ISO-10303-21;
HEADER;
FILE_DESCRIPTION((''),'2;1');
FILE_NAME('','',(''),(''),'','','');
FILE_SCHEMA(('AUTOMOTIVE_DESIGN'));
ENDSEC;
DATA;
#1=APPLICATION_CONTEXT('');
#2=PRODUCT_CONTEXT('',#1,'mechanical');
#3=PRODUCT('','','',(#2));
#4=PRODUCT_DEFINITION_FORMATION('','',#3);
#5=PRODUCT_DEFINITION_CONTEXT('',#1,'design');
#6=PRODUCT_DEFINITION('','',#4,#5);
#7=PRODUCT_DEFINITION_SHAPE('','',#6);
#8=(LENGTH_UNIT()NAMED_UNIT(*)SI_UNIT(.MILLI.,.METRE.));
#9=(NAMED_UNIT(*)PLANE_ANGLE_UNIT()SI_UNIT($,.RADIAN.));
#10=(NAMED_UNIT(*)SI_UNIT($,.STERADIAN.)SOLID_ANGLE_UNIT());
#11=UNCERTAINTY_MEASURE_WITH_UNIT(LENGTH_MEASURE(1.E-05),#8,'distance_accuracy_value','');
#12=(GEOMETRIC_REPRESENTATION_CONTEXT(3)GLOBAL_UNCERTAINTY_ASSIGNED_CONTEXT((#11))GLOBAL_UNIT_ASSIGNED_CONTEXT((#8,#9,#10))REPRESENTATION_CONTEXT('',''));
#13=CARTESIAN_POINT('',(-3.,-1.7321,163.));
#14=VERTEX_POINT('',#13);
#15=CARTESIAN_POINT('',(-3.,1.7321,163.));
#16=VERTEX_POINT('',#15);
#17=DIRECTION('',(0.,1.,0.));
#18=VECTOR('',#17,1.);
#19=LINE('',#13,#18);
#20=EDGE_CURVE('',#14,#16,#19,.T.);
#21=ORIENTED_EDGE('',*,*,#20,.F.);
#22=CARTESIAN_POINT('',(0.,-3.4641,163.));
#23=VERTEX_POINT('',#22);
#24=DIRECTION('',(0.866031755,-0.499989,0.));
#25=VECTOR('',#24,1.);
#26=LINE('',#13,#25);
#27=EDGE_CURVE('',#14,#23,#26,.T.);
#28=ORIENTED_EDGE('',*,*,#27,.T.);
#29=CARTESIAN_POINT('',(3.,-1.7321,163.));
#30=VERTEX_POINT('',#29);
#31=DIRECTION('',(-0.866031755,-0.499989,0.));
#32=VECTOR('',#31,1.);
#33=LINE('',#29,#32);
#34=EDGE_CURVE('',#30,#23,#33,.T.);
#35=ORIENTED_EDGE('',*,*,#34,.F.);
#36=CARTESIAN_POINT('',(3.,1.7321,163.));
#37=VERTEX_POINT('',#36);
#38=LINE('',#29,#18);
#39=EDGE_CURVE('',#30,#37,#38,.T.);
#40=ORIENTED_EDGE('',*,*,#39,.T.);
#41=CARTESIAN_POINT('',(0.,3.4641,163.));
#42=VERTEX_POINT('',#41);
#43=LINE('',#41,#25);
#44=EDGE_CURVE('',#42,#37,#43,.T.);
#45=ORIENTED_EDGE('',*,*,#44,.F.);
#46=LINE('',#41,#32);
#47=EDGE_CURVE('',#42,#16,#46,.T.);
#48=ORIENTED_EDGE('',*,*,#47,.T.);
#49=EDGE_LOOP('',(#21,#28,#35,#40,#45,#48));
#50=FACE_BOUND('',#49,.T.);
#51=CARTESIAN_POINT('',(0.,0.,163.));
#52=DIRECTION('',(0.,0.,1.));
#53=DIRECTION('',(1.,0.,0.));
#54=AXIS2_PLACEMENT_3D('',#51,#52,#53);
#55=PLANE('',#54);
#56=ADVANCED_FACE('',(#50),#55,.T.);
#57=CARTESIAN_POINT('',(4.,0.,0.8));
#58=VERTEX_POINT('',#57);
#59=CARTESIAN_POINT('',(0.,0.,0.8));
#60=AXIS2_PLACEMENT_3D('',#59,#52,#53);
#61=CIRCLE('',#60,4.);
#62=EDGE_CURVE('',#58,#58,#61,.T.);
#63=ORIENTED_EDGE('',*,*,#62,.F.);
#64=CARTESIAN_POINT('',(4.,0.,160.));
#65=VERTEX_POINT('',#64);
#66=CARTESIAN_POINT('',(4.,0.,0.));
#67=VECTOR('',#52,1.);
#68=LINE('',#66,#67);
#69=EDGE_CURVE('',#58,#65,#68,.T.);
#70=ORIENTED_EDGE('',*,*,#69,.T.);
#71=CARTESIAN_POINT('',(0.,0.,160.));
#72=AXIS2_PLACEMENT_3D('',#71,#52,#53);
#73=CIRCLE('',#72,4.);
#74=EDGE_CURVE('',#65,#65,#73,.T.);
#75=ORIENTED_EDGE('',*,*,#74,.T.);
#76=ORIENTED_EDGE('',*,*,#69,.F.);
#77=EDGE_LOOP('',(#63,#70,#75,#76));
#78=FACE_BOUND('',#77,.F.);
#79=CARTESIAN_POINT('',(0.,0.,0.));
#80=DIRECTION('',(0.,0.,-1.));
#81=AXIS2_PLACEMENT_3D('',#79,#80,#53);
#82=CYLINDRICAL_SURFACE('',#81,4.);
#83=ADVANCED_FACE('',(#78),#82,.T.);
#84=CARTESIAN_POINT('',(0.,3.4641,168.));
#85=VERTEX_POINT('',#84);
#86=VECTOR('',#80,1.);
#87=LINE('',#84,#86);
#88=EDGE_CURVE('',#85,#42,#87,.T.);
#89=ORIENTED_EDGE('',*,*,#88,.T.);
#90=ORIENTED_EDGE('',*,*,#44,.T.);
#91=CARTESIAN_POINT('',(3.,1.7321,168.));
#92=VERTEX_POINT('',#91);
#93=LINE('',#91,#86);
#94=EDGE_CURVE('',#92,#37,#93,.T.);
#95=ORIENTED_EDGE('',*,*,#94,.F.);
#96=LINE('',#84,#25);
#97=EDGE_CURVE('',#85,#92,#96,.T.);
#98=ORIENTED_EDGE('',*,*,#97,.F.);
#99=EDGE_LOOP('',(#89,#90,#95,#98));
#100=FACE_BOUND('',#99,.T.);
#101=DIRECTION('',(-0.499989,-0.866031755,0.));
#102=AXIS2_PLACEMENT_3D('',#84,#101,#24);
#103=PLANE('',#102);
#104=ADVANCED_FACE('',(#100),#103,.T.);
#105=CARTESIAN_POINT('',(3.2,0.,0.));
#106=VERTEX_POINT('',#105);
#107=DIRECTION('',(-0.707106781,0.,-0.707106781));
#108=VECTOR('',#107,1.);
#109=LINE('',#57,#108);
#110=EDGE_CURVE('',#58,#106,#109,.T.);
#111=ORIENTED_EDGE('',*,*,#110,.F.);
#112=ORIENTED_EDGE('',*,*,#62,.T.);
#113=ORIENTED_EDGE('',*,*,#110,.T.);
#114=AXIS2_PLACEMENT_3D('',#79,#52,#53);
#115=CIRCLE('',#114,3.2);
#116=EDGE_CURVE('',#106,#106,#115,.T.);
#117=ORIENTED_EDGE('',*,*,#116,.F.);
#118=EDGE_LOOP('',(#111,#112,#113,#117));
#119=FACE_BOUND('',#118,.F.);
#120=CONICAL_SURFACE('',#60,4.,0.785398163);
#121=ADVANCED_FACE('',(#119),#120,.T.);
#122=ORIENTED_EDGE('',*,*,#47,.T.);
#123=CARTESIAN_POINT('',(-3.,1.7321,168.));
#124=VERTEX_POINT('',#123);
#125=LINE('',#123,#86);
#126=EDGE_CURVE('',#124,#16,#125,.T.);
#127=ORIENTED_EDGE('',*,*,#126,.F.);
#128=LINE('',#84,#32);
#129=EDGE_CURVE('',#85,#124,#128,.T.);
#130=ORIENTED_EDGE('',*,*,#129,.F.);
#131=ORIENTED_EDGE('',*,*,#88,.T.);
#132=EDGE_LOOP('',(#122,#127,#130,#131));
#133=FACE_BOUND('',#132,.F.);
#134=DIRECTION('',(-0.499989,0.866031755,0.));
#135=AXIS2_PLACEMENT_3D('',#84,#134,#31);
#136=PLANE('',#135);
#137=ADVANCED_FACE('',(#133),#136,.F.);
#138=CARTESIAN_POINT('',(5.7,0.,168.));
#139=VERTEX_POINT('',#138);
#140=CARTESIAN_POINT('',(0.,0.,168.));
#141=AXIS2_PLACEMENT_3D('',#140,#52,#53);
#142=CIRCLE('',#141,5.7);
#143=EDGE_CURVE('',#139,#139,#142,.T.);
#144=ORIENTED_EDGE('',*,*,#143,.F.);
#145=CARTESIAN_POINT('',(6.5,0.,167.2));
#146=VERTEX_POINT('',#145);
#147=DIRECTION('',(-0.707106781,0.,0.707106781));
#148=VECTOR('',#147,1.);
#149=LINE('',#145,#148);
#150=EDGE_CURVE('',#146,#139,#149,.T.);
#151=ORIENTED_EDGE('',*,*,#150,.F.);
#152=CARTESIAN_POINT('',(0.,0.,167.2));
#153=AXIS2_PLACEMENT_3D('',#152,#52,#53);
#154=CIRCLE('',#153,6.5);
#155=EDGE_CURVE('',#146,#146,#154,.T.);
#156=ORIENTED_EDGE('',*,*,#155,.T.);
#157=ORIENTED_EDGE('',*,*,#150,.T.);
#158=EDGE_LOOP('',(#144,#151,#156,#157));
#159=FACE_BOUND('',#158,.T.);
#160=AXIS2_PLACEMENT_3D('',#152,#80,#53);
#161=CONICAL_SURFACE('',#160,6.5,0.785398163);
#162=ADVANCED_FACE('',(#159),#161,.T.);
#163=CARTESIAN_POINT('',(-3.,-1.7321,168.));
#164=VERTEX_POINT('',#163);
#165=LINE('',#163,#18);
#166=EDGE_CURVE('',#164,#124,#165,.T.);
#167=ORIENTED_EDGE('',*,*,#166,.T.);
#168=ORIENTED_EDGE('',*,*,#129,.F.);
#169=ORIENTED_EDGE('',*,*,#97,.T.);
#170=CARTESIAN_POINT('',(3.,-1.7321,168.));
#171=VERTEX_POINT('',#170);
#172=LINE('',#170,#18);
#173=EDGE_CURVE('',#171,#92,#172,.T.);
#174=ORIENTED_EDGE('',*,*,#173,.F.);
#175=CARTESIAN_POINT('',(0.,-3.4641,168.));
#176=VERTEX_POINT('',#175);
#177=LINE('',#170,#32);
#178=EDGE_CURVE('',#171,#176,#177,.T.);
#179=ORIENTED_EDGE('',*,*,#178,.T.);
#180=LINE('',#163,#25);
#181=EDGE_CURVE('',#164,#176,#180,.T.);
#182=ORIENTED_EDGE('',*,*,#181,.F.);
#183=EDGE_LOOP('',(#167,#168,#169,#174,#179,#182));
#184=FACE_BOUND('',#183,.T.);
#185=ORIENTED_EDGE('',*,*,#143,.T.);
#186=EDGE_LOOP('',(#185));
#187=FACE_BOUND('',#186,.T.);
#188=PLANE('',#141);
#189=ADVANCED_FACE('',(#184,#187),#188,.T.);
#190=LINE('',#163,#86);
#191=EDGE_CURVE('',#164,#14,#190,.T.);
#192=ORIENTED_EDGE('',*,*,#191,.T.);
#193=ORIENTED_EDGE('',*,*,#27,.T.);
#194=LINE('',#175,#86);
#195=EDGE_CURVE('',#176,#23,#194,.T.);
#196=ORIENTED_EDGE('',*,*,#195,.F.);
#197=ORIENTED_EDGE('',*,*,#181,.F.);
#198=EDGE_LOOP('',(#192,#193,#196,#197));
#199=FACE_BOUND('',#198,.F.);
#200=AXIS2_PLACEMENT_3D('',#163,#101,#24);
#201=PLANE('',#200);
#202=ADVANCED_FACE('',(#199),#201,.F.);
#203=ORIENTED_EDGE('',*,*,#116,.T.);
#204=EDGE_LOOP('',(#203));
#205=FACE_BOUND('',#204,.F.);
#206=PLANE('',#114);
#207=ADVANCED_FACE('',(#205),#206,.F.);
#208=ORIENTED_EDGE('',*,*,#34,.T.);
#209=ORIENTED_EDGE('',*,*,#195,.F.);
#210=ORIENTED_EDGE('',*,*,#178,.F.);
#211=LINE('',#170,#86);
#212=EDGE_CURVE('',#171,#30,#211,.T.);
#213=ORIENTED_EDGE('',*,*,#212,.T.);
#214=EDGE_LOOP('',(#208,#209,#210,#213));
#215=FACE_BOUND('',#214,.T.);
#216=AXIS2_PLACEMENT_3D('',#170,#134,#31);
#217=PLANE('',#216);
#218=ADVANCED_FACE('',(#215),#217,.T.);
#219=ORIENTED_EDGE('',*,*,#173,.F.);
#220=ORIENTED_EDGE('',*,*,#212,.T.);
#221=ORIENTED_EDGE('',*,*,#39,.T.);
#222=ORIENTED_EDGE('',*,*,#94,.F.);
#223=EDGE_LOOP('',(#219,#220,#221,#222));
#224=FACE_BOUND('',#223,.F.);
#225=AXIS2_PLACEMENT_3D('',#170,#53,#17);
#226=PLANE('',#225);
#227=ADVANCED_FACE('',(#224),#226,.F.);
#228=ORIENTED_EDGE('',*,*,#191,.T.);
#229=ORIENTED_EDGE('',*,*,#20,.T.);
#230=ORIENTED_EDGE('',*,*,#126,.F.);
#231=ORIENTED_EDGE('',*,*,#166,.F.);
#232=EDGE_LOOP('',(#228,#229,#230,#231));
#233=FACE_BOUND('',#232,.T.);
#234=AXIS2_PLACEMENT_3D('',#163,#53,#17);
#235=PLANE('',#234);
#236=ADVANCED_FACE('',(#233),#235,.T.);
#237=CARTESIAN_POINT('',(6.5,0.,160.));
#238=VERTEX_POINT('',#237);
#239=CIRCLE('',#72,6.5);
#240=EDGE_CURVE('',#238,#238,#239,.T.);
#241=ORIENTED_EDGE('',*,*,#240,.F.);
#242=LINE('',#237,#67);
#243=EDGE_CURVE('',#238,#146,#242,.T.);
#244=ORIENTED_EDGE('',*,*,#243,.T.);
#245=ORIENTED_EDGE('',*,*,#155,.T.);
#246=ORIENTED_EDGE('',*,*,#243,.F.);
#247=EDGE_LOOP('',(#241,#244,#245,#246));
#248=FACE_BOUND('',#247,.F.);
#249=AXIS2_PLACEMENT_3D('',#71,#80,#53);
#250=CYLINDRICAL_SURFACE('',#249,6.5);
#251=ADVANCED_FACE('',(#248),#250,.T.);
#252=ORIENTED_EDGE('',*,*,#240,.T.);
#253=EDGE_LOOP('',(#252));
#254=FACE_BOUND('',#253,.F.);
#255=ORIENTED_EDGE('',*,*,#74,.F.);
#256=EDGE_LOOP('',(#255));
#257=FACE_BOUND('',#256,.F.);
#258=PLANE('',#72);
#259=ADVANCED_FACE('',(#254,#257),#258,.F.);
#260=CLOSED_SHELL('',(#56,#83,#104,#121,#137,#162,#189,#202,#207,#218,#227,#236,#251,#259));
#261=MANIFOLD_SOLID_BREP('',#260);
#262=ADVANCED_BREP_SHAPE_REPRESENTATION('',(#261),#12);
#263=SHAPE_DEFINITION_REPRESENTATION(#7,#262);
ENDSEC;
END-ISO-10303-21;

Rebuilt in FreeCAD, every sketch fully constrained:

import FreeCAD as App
import Part
import Sketcher
Q = App.Units.Quantity


def edges_at(feature, points):
    """Names of the edges that pass closest to the given points."""
    edges = feature.Shape.Edges
    near = lambda p: min(range(len(edges)), key=lambda i: edges[i].distToShape(Part.Vertex(*p))[0])
    return sorted({f"Edge{near(p) + 1}" for p in points})

doc = App.newDocument("Part")
params = doc.addObject("Spreadsheet::Sheet", "Params")
for row, (alias, value) in enumerate([
    ("sketch1_diameter", "8 mm"),
    ("pad1_length", "160 mm"),
    ("sketch2_diameter", "13 mm"),
    ("pad2_length", "8 mm"),
    ("pocket1_length", "5 mm"),
    ("chamfer_size", "0.8 mm"),
], start=1):
    params.set(f"A{row}", alias)
    params.set(f"B{row}", "=" + value)
    params.setAlias(f"B{row}", alias)

body = doc.addObject("PartDesign::Body", "Body")

# Sketch on XY plane
sketch1 = body.newObject("Sketcher::SketchObject", "Sketch")
sketch1.AttachmentSupport = (doc.getObject("XY_Plane"), [""])
sketch1.MapMode = "FlatFace"
sketch1.addGeometry(Part.Circle(App.Vector(0, 0, 0), App.Vector(0, 0, 1), 4), False)
sketch1.addConstraint([
    Sketcher.Constraint("Coincident", 0, 3, -1, 1),
    Sketcher.Constraint("Diameter", 0, 8.0),
])
sketch1.setExpression("Constraints[1]", "Params.sketch1_diameter")
pad1 = body.newObject("PartDesign::Pad", "Pad")
pad1.Profile = sketch1
pad1.setExpression("Length", "Params.pad1_length")

# Sketch on XY plane
sketch2 = body.newObject("Sketcher::SketchObject", "Sketch001")
sketch2.AttachmentSupport = (doc.getObject("XY_Plane"), [""])
sketch2.MapMode = "FlatFace"
sketch2.AttachmentOffset = App.Placement(App.Vector(0, 0, 160), App.Rotation())
sketch2.addGeometry(Part.Circle(App.Vector(0, 0, 0), App.Vector(0, 0, 1), 6), False)
sketch2.addConstraint([
    Sketcher.Constraint("Coincident", 0, 3, -1, 1),
    Sketcher.Constraint("Diameter", 0, 13.0),
])
sketch2.setExpression("Constraints[1]", "Params.sketch2_diameter")
pad2 = body.newObject("PartDesign::Pad", "Pad001")
pad2.Profile = sketch2
pad2.setExpression("Length", "Params.pad2_length")

# Sketch on XY plane
sketch3 = body.newObject("Sketcher::SketchObject", "Sketch002")
sketch3.AttachmentSupport = (doc.getObject("XY_Plane"), [""])
sketch3.MapMode = "FlatFace"
sketch3.AttachmentOffset = App.Placement(App.Vector(0, 0, 168), App.Rotation())
sketch3.addGeometry([
    Part.LineSegment(App.Vector(3, 1.7, 0), App.Vector(0, 3.5, 0)),  # 0
    Part.LineSegment(App.Vector(0, 3.5, 0), App.Vector(-3, 1.7, 0)),  # 1
    Part.LineSegment(App.Vector(-3, 1.7, 0), App.Vector(-3, -1.7, 0)),  # 2
    Part.LineSegment(App.Vector(-3, -1.7, 0), App.Vector(0, -3.5, 0)),  # 3
    Part.LineSegment(App.Vector(0, -3.5, 0), App.Vector(3, -1.7, 0)),  # 4
    Part.LineSegment(App.Vector(3, -1.7, 0), App.Vector(3, 1.7, 0)),  # 5
], False)
sketch3.addConstraint([
    Sketcher.Constraint("Coincident", 0, 2, 1, 1),
    Sketcher.Constraint("Coincident", 1, 2, 2, 1),
    Sketcher.Constraint("Coincident", 2, 2, 3, 1),
    Sketcher.Constraint("Coincident", 3, 2, 4, 1),
    Sketcher.Constraint("Coincident", 4, 2, 5, 1),
    Sketcher.Constraint("Coincident", 5, 2, 0, 1),
    Sketcher.Constraint("Vertical", 2),
    Sketcher.Constraint("Vertical", 5),
    Sketcher.Constraint("Symmetric", 0, 2, 3, 2, -1, 1),
    Sketcher.Constraint("Symmetric", 1, 2, 4, 2, -1, 1),
    Sketcher.Constraint("PointOnObject", 0, 2, -2),
    Sketcher.Constraint("Parallel", 0, 3),
    Sketcher.Constraint("Horizontal", 2, 2, 4, 2),
    Sketcher.Constraint("DistanceX", 2, 2, 4, 2, 6.0),
    Sketcher.Constraint("Angle", 0, Q("150.0007 deg")),
    Sketcher.Constraint("DistanceY", 2, 2, 2, 1, 3.4642),
])
pocket1 = body.newObject("PartDesign::Pocket", "Pocket")
pocket1.Profile = sketch3
pocket1.setExpression("Length", "Params.pocket1_length")
doc.recompute()

chamfer = body.newObject("PartDesign::Chamfer", "Chamfer")
chamfer.Base = (pocket1, edges_at(pocket1, [(-6.5, 0, 168), (-4, 0, 0)]))
chamfer.setExpression("Size", "Params.chamfer_size")

doc.recompute()
